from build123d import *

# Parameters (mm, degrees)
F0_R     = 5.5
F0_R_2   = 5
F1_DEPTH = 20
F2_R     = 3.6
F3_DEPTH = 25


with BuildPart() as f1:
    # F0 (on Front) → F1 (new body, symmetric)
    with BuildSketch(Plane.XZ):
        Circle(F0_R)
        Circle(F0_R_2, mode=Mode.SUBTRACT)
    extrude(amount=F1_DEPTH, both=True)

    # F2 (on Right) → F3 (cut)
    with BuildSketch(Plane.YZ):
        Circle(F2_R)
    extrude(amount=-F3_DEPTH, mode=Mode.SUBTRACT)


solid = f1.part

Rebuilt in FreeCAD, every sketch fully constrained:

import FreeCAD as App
import Part
import Sketcher

V = App.Vector
Q = App.Units.Quantity

doc = App.newDocument("Part")
params = doc.addObject("Spreadsheet::Sheet", "Params")
for row, (alias, value) in enumerate([
    ("sketch1_diameter", "11 mm"),
    ("sketch1_diameter2", "10 mm"),
    ("pad1_length", "40 mm"),
    ("sketch2_diameter", "7.2 mm"),
    ("pocket1_length", "25 mm"),
], start=1):
    params.set(f"A{row}", alias)
    params.set(f"B{row}", "=" + value)
    params.setAlias(f"B{row}", alias)

body = doc.addObject("PartDesign::Body", "Body")

# Sketch on XZ plane
sketch1 = body.newObject("Sketcher::SketchObject", "Sketch")
sketch1.AttachmentSupport = (doc.getObject("XZ_Plane"), [""])
sketch1.MapMode = "FlatFace"
sketch1.addGeometry([
    Part.Circle(V(0, 0, 0), V(0, 0, 1), 6),
    Part.Circle(V(0, 0, 0), V(0, 0, 1), 5),
], False)
sketch1.addConstraint([
    Sketcher.Constraint("Coincident", 0, 3, -1, 1),
    Sketcher.Constraint("Coincident", 1, 3, -1, 1),
    Sketcher.Constraint("Diameter", 0, Q("11 mm")),
    Sketcher.Constraint("Diameter", 1, Q("10 mm")),
])
sketch1.setExpression("Constraints[2]", "Params.sketch1_diameter")
sketch1.setExpression("Constraints[3]", "Params.sketch1_diameter2")
pad1 = body.newObject("PartDesign::Pad", "Pad")
pad1.Profile = sketch1
pad1.setExpression("Length", "Params.pad1_length")
pad1.Midplane = True

# Sketch on YZ plane
sketch2 = body.newObject("Sketcher::SketchObject", "Sketch001")
sketch2.AttachmentSupport = (doc.getObject("YZ_Plane"), [""])
sketch2.MapMode = "FlatFace"
sketch2.addGeometry(Part.Circle(V(0, 0, 0), V(0, 0, 1), 3.6), False)
sketch2.addConstraint([
    Sketcher.Constraint("Coincident", 0, 3, -1, 1),
    Sketcher.Constraint("Diameter", 0, Q("7.2 mm")),
])
sketch2.setExpression("Constraints[1]", "Params.sketch2_diameter")
pocket1 = body.newObject("PartDesign::Pocket", "Pocket")
pocket1.Profile = sketch2
pocket1.setExpression("Length", "Params.pocket1_length")

doc.recompute()
